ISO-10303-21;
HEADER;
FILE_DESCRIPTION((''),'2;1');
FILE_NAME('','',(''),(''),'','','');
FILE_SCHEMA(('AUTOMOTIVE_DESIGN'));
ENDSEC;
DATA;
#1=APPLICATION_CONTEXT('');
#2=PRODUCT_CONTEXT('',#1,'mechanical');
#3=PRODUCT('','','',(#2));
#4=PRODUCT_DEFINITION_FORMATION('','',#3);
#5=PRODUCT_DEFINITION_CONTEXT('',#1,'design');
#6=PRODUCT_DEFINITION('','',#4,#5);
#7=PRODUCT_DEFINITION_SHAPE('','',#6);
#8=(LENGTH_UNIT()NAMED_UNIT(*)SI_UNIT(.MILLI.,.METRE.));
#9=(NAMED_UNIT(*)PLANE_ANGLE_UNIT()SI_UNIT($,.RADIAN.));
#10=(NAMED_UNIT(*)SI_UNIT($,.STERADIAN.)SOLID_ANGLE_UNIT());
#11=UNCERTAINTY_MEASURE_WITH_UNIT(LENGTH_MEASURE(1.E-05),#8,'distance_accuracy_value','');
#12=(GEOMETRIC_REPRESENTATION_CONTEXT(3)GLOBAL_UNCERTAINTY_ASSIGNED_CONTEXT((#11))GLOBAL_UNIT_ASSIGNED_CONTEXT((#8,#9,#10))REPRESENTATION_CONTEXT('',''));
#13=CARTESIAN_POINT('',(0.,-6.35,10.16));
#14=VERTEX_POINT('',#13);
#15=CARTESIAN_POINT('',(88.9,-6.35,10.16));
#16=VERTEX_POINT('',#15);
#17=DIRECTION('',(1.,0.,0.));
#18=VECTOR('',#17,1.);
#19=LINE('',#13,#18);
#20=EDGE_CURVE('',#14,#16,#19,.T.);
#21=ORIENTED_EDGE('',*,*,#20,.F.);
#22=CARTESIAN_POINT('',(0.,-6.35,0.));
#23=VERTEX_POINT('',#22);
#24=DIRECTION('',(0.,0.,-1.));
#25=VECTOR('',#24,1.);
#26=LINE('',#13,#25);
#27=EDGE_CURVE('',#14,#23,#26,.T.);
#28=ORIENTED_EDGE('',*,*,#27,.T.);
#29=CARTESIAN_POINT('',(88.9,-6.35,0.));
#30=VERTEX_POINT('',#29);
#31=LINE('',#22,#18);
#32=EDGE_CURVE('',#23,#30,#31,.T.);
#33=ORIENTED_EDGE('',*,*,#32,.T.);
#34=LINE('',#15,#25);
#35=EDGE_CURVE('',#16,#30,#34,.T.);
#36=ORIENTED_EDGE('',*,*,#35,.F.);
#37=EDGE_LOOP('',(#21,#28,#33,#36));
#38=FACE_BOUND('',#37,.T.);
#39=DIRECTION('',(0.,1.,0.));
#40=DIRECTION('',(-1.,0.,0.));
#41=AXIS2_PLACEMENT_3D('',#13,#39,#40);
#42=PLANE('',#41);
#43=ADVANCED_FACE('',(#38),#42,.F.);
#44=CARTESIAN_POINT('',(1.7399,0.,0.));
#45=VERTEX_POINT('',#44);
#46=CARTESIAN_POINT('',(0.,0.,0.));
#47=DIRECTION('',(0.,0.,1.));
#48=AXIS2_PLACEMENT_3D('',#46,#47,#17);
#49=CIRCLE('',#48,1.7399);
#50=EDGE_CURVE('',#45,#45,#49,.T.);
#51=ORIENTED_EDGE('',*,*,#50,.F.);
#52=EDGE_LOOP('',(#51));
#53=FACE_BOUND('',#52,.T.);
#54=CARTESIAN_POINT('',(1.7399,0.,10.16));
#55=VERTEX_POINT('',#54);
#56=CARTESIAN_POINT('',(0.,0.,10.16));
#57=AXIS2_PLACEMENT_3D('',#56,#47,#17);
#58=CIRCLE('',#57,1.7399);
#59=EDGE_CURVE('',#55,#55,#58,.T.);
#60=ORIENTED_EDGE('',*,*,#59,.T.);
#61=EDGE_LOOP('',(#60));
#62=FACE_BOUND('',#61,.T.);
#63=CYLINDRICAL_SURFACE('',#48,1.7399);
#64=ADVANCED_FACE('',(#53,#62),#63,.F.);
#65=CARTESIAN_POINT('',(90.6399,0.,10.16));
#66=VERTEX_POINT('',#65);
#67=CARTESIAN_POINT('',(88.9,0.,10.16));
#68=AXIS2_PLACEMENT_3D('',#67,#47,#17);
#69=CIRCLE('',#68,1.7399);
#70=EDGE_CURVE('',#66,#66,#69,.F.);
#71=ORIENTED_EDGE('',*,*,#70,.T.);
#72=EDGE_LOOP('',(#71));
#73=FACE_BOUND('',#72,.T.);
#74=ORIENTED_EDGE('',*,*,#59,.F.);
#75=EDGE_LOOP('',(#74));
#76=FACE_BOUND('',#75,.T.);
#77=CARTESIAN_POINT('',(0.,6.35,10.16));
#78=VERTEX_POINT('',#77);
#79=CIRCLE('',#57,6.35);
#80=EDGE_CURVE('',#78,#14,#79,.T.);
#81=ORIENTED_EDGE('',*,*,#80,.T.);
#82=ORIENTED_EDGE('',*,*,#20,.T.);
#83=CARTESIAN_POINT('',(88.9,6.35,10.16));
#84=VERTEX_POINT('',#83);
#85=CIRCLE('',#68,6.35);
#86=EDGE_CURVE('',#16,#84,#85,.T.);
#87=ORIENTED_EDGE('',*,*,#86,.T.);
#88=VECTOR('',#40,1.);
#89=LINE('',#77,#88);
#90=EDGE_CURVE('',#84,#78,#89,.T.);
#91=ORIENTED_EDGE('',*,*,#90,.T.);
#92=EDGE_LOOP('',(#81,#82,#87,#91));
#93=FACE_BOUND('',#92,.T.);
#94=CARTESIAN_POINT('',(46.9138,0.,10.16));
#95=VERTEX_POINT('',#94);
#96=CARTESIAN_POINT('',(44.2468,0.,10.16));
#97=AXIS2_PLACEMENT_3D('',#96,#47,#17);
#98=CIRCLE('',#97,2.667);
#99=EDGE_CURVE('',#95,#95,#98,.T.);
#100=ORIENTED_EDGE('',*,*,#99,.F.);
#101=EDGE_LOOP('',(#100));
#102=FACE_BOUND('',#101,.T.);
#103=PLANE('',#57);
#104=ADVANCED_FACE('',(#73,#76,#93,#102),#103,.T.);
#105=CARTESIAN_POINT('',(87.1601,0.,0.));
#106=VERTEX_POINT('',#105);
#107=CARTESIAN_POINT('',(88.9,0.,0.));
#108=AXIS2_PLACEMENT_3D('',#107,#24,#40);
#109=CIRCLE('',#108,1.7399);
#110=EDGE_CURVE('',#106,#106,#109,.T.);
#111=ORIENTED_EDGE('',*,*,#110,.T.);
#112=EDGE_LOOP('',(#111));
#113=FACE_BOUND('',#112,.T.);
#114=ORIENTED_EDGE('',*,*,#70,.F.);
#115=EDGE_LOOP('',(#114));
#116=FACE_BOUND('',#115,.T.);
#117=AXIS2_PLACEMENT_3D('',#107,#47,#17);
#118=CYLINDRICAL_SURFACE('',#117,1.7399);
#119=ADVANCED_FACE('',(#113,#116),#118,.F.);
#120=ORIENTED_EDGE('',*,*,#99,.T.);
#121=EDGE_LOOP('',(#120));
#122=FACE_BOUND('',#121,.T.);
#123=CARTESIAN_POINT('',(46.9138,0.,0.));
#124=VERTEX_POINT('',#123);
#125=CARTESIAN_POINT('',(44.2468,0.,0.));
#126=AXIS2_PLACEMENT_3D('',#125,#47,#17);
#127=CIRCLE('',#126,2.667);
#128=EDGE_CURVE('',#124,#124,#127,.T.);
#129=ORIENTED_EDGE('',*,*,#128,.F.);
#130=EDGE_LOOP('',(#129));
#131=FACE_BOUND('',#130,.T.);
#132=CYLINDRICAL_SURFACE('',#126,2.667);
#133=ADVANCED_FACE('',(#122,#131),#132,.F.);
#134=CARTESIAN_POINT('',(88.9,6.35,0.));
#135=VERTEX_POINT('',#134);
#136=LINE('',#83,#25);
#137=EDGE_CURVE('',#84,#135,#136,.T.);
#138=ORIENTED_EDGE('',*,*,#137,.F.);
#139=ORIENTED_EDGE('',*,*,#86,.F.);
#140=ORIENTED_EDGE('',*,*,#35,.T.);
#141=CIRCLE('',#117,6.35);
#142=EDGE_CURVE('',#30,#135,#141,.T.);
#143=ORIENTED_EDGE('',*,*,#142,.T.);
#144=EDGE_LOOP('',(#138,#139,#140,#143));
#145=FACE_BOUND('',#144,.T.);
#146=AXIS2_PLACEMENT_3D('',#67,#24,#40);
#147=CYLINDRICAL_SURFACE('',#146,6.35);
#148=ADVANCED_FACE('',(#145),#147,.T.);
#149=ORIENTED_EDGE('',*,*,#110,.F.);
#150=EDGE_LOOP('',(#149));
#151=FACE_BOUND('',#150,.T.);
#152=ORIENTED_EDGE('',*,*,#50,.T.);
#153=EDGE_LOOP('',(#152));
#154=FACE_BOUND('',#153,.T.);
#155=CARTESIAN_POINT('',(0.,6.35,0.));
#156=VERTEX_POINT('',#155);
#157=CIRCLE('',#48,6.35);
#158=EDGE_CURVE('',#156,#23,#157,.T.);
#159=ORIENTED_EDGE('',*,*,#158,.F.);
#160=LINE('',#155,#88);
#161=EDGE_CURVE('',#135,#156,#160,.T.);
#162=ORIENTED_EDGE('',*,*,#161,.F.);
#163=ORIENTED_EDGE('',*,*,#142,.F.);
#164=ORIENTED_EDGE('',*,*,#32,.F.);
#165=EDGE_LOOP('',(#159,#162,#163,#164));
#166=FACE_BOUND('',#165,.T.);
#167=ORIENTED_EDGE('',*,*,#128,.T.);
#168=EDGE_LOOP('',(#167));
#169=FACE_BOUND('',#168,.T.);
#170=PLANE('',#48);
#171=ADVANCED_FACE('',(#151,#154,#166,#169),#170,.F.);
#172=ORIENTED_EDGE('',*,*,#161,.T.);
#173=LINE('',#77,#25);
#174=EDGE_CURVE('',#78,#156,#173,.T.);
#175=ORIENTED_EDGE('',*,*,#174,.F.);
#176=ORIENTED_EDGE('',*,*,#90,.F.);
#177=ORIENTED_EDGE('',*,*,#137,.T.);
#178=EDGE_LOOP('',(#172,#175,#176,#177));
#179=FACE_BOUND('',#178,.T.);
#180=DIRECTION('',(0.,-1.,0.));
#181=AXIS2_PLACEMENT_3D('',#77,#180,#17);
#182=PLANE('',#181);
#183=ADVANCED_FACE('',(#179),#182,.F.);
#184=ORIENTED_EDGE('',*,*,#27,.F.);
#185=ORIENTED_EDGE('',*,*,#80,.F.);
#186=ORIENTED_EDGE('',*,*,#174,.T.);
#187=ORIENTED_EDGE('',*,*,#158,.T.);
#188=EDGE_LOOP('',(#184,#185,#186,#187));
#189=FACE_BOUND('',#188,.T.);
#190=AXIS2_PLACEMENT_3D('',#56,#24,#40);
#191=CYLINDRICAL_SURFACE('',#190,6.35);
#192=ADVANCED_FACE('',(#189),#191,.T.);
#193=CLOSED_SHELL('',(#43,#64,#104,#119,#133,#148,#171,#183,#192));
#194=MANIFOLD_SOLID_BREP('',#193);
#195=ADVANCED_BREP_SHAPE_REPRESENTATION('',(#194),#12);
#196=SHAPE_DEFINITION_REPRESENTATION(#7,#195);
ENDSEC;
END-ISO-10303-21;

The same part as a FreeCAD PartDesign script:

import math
import FreeCAD as App
import Part
import Sketcher
from FreeCAD import Vector
Q = App.Units.Quantity

doc = App.newDocument("Part")
body = doc.addObject("PartDesign::Body", "Body")

sketch1 = body.newObject("Sketcher::SketchObject", "Sketch")
sketch1.AttachmentSupport = (doc.getObject("XY_Plane"), [""])
sketch1.MapMode = "FlatFace"
sketch1.addGeometry([
    Part.LineSegment(Vector(89, 6, 0), Vector(0, 6, 0)),
    Part.ArcOfCircle(Part.Circle(Vector(0, 0, 0), Vector(0, 0, 1), 6), math.radians(90), math.radians(270)),
    Part.LineSegment(Vector(0, -6, 0), Vector(89, -6, 0)),
    Part.ArcOfCircle(Part.Circle(Vector(89, 0, 0), Vector(0, 0, 1), 6), math.radians(-90), math.radians(90)),
], False)
sketch1.addConstraint([
    Sketcher.Constraint("Tangent", 0, 2, 1, 1),
    Sketcher.Constraint("Tangent", 1, 2, 2, 1),
    Sketcher.Constraint("Tangent", 2, 2, 3, 1),
    Sketcher.Constraint("Tangent", 3, 2, 0, 1),
    Sketcher.Constraint("Horizontal", 0),
    Sketcher.Constraint("Horizontal", 2),
    Sketcher.Constraint("Coincident", 1, 3, -1, 1),
    Sketcher.Constraint("Radius", 1, Q("0.25 in")),
    Sketcher.Constraint("DistanceX", 0, 2, 0, 1, Q("3.5 in")),
])
pad1 = body.newObject("PartDesign::Pad", "Pad")
pad1.Profile = sketch1
pad1.Length = Q("0.4 in")

sketch2 = body.newObject("Sketcher::SketchObject", "Sketch001")
sketch2.AttachmentSupport = (doc.getObject("XY_Plane"), [""])
sketch2.MapMode = "FlatFace"
sketch2.AttachmentOffset = App.Placement(Vector(0, 0, -1), App.Rotation())
sketch2.addGeometry(Part.Circle(Vector(0, 0, 0), Vector(0, 0, 1), 1.7), False)
sketch2.addConstraint([
    Sketcher.Constraint("Coincident", 0, 3, -1, 1),
    Sketcher.Constraint("Diameter", 0, Q("0.137 in")),
])
pocket1 = body.newObject("PartDesign::Pocket", "Pocket")
pocket1.Profile = sketch2
pocket1.Length = 12.16
pocket1.Reversed = True
doc.recompute()

datumplane = body.newObject("PartDesign::Plane", "DatumPlane")
datumplane.AttachmentSupport = (doc.getObject("YZ_Plane"), [""])
datumplane.MapMode = "FlatFace"
datumplane.AttachmentOffset = App.Placement(Vector(0, 0, 1.75 * 25.4), App.Rotation())
mirrored = body.newObject("PartDesign::Mirrored", "Mirrored")
mirrored.Originals = [pocket1]
mirrored.MirrorPlane = (datumplane, [""])
body.Tip = mirrored

sketch3 = body.newObject("Sketcher::SketchObject", "Sketch002")
sketch3.AttachmentSupport = (doc.getObject("XY_Plane"), [""])
sketch3.MapMode = "FlatFace"
sketch3.AttachmentOffset = App.Placement(Vector(0, 0, 0.4 * 25.4), App.Rotation())
sketch3.addGeometry(Part.Circle(Vector(44.2, 0, 0), Vector(0, 0, 1), 2.7), False)
sketch3.addConstraint([
    Sketcher.Constraint("PointOnObject", 0, 3, -1),
    Sketcher.Constraint("Diameter", 0, Q("0.21 in")),
    Sketcher.Constraint("DistanceX", -1, 1, 0, 3, Q("1.742 in")),
])
pocket2 = body.newObject("PartDesign::Pocket", "Pocket001")
pocket2.Profile = sketch3
pocket2.Type = "ThroughAll"
pocket2.Midplane = True

doc.recompute()
